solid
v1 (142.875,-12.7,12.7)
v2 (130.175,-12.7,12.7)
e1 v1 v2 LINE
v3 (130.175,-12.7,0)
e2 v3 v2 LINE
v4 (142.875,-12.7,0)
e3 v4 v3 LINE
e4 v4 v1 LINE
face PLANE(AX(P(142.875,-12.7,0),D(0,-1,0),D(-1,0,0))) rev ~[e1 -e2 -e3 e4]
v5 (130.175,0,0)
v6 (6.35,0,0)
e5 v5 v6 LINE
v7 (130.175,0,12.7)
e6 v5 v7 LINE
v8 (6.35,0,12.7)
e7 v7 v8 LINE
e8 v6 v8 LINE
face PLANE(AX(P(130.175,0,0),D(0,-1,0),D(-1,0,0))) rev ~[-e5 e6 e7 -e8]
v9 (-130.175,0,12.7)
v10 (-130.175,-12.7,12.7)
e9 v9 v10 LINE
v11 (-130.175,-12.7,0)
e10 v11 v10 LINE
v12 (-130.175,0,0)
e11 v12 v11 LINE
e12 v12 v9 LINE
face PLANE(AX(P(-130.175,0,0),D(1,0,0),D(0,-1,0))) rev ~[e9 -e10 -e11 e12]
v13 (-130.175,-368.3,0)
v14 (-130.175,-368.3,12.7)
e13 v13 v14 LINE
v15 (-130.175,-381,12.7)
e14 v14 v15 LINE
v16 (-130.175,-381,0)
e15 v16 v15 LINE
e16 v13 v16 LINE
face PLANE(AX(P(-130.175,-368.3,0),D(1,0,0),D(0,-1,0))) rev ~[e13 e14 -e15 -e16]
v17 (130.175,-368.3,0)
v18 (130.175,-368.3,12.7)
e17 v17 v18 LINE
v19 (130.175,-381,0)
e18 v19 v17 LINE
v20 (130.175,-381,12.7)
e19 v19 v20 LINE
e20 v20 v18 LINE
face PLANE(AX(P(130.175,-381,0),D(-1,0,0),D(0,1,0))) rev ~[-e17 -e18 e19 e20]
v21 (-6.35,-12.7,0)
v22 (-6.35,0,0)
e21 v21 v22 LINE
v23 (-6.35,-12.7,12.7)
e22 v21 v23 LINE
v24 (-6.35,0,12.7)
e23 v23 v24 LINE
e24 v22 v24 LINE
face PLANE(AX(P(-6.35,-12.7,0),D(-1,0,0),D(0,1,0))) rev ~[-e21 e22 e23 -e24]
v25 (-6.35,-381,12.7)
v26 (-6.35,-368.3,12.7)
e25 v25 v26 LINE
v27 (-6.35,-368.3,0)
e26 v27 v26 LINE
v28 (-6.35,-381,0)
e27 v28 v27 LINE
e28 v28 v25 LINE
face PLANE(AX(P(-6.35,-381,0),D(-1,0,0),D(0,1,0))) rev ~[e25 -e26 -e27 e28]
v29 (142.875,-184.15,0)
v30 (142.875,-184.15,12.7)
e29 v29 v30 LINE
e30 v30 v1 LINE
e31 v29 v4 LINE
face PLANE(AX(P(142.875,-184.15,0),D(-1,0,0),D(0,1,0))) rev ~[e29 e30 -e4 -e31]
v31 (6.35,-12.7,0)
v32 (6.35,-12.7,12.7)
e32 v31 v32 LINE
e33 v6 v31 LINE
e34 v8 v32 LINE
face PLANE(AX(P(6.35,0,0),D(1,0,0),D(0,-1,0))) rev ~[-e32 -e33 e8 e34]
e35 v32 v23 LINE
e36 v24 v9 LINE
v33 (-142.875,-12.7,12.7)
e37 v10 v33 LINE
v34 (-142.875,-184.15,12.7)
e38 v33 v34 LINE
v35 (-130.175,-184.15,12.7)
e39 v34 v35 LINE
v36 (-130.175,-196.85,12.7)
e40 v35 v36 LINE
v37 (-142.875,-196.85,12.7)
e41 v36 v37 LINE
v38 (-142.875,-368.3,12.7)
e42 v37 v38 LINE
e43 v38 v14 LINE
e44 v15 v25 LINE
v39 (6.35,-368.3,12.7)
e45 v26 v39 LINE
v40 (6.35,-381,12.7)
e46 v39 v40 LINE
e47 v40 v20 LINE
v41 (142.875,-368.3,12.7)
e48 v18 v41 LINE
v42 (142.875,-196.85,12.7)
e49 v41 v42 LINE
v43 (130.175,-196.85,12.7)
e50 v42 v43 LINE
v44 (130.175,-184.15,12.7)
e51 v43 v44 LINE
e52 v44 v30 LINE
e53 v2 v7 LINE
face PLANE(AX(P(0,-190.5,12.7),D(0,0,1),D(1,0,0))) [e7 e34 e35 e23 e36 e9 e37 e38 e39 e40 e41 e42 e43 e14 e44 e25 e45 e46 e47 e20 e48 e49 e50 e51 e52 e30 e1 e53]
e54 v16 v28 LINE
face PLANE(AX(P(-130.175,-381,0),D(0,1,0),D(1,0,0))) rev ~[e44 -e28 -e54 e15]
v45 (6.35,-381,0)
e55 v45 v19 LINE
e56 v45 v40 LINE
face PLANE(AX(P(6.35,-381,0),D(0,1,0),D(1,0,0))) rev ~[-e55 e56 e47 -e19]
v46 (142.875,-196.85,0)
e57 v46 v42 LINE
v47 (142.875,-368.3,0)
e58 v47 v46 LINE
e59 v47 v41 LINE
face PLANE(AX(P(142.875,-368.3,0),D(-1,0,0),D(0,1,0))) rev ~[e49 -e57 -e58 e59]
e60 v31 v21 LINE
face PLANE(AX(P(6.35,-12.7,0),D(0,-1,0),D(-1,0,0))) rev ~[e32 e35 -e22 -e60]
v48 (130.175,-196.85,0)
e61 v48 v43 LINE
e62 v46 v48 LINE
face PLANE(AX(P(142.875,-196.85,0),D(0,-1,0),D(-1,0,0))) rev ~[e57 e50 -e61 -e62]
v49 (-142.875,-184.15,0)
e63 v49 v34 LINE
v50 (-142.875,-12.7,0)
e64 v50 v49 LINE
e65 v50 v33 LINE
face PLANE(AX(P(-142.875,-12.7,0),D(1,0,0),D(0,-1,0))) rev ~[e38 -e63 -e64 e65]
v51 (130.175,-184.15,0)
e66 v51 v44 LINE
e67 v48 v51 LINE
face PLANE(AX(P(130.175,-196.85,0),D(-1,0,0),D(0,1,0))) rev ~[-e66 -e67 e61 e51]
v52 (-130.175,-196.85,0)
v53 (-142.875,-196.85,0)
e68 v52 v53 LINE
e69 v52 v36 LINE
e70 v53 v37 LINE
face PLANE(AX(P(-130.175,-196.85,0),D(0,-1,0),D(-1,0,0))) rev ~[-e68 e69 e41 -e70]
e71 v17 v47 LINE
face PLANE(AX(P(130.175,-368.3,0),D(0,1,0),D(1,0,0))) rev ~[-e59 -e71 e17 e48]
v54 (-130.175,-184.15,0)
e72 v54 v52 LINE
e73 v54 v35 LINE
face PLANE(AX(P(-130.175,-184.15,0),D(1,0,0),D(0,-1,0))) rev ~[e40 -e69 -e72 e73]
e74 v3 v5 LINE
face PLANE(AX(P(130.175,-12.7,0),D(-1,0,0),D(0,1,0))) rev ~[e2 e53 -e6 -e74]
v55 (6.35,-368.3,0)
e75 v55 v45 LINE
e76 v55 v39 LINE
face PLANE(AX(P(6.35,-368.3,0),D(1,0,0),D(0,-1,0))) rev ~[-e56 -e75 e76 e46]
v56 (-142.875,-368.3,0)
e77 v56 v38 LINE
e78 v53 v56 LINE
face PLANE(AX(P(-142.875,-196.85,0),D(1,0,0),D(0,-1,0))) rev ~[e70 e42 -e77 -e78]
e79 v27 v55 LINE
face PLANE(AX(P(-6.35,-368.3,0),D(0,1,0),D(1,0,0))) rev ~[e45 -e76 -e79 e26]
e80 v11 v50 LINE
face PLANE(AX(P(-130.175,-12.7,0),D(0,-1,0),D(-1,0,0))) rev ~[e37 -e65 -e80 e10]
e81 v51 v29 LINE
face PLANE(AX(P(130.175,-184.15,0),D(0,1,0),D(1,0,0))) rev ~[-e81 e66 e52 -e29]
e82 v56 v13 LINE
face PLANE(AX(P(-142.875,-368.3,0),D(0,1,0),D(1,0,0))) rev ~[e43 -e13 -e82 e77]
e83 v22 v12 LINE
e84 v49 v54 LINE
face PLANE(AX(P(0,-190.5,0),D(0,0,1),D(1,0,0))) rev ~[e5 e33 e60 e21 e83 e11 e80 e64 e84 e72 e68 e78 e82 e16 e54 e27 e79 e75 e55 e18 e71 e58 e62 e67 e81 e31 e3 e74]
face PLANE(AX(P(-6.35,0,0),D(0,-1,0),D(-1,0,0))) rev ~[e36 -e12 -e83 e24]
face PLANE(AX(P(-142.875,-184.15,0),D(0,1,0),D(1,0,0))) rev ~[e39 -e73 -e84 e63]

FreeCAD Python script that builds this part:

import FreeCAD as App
import Part
import Sketcher
from FreeCAD import Vector
Q = App.Units.Quantity


def add_polygon(sketch, points):
    """Adds a closed chain of lines whose ends are joined by coincident constraints."""
    first, n = sketch.GeometryCount, len(points)
    for a, b in zip(points, points[1:] + points[:1]):
        sketch.addGeometry(Part.LineSegment(App.Vector(*a, 0), App.Vector(*b, 0)), False)
    for i in range(n):
        sketch.addConstraint(Sketcher.Constraint("Coincident", first + i, 2, first + (i + 1) % n, 1))

doc = App.newDocument("Part")
body = doc.addObject("PartDesign::Body", "Body")

# Sketch on XY plane
sketch1 = doc.addObject("Sketcher::SketchObject", "Sketch")
body.addObject(sketch1)
sketch1.AttachmentSupport = (doc.XY_Plane, [""])
sketch1.MapMode = "FlatFace"
add_polygon(sketch1, [(-6, 0), (-130, 0), (-130, -13), (-143, -13), (-143, -184), (-130, -184), (-130, -197), (-143, -197), (-143, -368), (-130, -368), (-130, -381), (-6, -381), (-6, -368), (6, -368), (6, -381), (130, -381), (130, -368), (143, -368), (143, -197), (130, -197), (130, -184), (143, -184), (143, -13), (130, -13), (130, 0), (6, 0), (6, -13), (-6, -13)])  # lines 0-27
sketch1.addConstraint([
    Sketcher.Constraint("Horizontal", 0),
    Sketcher.Constraint("Vertical", 1),
    Sketcher.Constraint("Horizontal", 2),
    Sketcher.Constraint("Vertical", 3),
    Sketcher.Constraint("Horizontal", 4),
    Sketcher.Constraint("Vertical", 5),
    Sketcher.Constraint("Horizontal", 6),
    Sketcher.Constraint("Vertical", 7),
    Sketcher.Constraint("Horizontal", 8),
    Sketcher.Constraint("Vertical", 9),
    Sketcher.Constraint("Horizontal", 10),
    Sketcher.Constraint("Vertical", 11),
    Sketcher.Constraint("Horizontal", 12),
    Sketcher.Constraint("Vertical", 13),
    Sketcher.Constraint("Horizontal", 14),
    Sketcher.Constraint("Vertical", 15),
    Sketcher.Constraint("Horizontal", 16),
    Sketcher.Constraint("Vertical", 17),
    Sketcher.Constraint("Horizontal", 18),
    Sketcher.Constraint("Vertical", 19),
    Sketcher.Constraint("Horizontal", 20),
    Sketcher.Constraint("Vertical", 21),
    Sketcher.Constraint("Horizontal", 22),
    Sketcher.Constraint("Vertical", 23),
    Sketcher.Constraint("Horizontal", 24),
    Sketcher.Constraint("Vertical", 25),
    Sketcher.Constraint("Horizontal", 26),
    Sketcher.Constraint("Vertical", 27),
    Sketcher.Constraint("Symmetric", 0, 2, 23, 2, -1, 1),
    Sketcher.Constraint("Symmetric", 10, 2, 13, 2, -2),
    Sketcher.Constraint("Symmetric", 8, 2, 15, 2, -2),
    Sketcher.Constraint("Symmetric", 6, 2, 17, 2, -2),
    Sketcher.Constraint("Symmetric", 4, 2, 19, 2, -2),
    Sketcher.Constraint("Symmetric", 2, 2, 21, 2, -2),
    Sketcher.Constraint("Symmetric", 24, 2, 27, 2, -2),
    Sketcher.Constraint("Horizontal", 8, 2, 11, 2),
    Sketcher.Constraint("Horizontal", 22, 2, 25, 2),
    Sketcher.Constraint("Vertical", 1, 2, 4, 2),
    Sketcher.Constraint("Vertical", 3, 2, 6, 2),
    Sketcher.Constraint("Vertical", 5, 2, 8, 2),
    Sketcher.Constraint("Vertical", 13, 2, 24, 2),
    Sketcher.Constraint("Equal", 8, 12),
    Sketcher.Constraint("Equal", 26, 1),
    Sketcher.Constraint("Equal", 1, 5),
    Sketcher.Constraint("Equal", 3, 7),
    Sketcher.Constraint("Equal", 5, 9),
    Sketcher.Constraint("DistanceX", 2, 2, 2, 1, Q("0.5 in")),
    Sketcher.Constraint("DistanceY", 9, 2, -1, 1, Q("15 in")),
    Sketcher.Constraint("DistanceX", 0, 2, 0, 1, Q("4.875 in")),
])
pad1 = doc.addObject("PartDesign::Pad", "Pad")
body.addObject(pad1)
pad1.Profile = sketch1
pad1.Length = Q("0.5 in")

doc.recompute()
